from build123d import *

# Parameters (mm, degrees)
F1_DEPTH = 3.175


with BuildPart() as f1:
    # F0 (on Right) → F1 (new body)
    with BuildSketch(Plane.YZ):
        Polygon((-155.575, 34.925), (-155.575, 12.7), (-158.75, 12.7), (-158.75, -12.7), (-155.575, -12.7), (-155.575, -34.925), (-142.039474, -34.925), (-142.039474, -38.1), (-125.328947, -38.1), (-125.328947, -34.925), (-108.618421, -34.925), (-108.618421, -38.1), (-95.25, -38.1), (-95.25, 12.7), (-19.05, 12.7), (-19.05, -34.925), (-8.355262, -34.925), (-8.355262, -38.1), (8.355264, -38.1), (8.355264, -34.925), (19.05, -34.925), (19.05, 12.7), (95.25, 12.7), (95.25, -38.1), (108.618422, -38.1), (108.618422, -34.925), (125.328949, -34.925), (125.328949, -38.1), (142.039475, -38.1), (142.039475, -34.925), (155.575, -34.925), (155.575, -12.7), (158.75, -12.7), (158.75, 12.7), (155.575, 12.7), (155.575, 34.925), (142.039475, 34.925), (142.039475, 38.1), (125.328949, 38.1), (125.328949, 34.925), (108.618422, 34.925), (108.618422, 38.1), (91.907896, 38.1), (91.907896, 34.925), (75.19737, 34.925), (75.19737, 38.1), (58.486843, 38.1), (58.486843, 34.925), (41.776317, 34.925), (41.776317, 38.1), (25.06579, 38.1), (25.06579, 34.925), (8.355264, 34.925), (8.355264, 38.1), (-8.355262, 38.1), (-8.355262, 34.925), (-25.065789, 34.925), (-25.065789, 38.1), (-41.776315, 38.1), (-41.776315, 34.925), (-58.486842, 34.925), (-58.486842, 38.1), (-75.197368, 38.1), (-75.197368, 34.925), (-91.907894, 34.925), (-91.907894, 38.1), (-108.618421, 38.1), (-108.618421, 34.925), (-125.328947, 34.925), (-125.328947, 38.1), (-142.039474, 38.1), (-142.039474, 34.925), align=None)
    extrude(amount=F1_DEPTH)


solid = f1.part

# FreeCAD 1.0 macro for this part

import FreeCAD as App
import Part
import Sketcher
from FreeCAD import Vector
Q = App.Units.Quantity

doc = App.newDocument("Part")
body = doc.addObject("PartDesign::Body", "Body")

# Sketch on YZ plane
sketch1 = body.newObject("Sketcher::SketchObject", "Sketch")
sketch1.AttachmentSupport = (doc.getObject("YZ_Plane"), [""])
sketch1.MapMode = "FlatFace"
sketch1.addGeometry([
    Part.LineSegment(Vector(-155.6, 34.9, 0), Vector(-155.6, 12.7, 0)),  # 0
    Part.LineSegment(Vector(-155.6, 12.7, 0), Vector(-158.8, 12.7, 0)),  # 1
    Part.LineSegment(Vector(-158.8, 12.7, 0), Vector(-158.8, -12.7, 0)),  # 2
    Part.LineSegment(Vector(-158.8, -12.7, 0), Vector(-155.6, -12.7, 0)),  # 3
    Part.LineSegment(Vector(-155.6, -12.7, 0), Vector(-155.6, -34.9, 0)),  # 4
    Part.LineSegment(Vector(-155.6, -34.9, 0), Vector(-142, -34.9, 0)),  # 5
    Part.LineSegment(Vector(-142, -34.9, 0), Vector(-142, -38.1, 0)),  # 6
    Part.LineSegment(Vector(-142, -38.1, 0), Vector(-125.3, -38.1, 0)),  # 7
    Part.LineSegment(Vector(-125.3, -38.1, 0), Vector(-125.3, -34.9, 0)),  # 8
    Part.LineSegment(Vector(-125.3, -34.9, 0), Vector(-108.6, -34.9, 0)),  # 9
    Part.LineSegment(Vector(-108.6, -34.9, 0), Vector(-108.6, -38.1, 0)),  # 10
    Part.LineSegment(Vector(-108.6, -38.1, 0), Vector(-95.2, -38.1, 0)),  # 11
    Part.LineSegment(Vector(-95.2, -38.1, 0), Vector(-95.2, 12.7, 0)),  # 12
    Part.LineSegment(Vector(-95.2, 12.7, 0), Vector(-19.1, 12.7, 0)),  # 13
    Part.LineSegment(Vector(-19.1, 12.7, 0), Vector(-19.1, -34.9, 0)),  # 14
    Part.LineSegment(Vector(-19.1, -34.9, 0), Vector(-8.4, -34.9, 0)),  # 15
    Part.LineSegment(Vector(-8.4, -34.9, 0), Vector(-8.4, -38.1, 0)),  # 16
    Part.LineSegment(Vector(-8.4, -38.1, 0), Vector(8.4, -38.1, 0)),  # 17
    Part.LineSegment(Vector(8.4, -38.1, 0), Vector(8.4, -34.9, 0)),  # 18
    Part.LineSegment(Vector(8.4, -34.9, 0), Vector(19.1, -34.9, 0)),  # 19
    Part.LineSegment(Vector(19.1, -34.9, 0), Vector(19.1, 12.7, 0)),  # 20
    Part.LineSegment(Vector(19.1, 12.7, 0), Vector(95.2, 12.7, 0)),  # 21
    Part.LineSegment(Vector(95.2, 12.7, 0), Vector(95.2, -38.1, 0)),  # 22
    Part.LineSegment(Vector(95.2, -38.1, 0), Vector(108.6, -38.1, 0)),  # 23
    Part.LineSegment(Vector(108.6, -38.1, 0), Vector(108.6, -34.9, 0)),  # 24
    Part.LineSegment(Vector(108.6, -34.9, 0), Vector(125.3, -34.9, 0)),  # 25
    Part.LineSegment(Vector(125.3, -34.9, 0), Vector(125.3, -38.1, 0)),  # 26
    Part.LineSegment(Vector(125.3, -38.1, 0), Vector(142, -38.1, 0)),  # 27
    Part.LineSegment(Vector(142, -38.1, 0), Vector(142, -34.9, 0)),  # 28
    Part.LineSegment(Vector(142, -34.9, 0), Vector(155.6, -34.9, 0)),  # 29
    Part.LineSegment(Vector(155.6, -34.9, 0), Vector(155.6, -12.7, 0)),  # 30
    Part.LineSegment(Vector(155.6, -12.7, 0), Vector(158.8, -12.7, 0)),  # 31
    Part.LineSegment(Vector(158.8, -12.7, 0), Vector(158.8, 12.7, 0)),  # 32
    Part.LineSegment(Vector(158.8, 12.7, 0), Vector(155.6, 12.7, 0)),  # 33
    Part.LineSegment(Vector(155.6, 12.7, 0), Vector(155.6, 34.9, 0)),  # 34
    Part.LineSegment(Vector(155.6, 34.9, 0), Vector(142, 34.9, 0)),  # 35
    Part.LineSegment(Vector(142, 34.9, 0), Vector(142, 38.1, 0)),  # 36
    Part.LineSegment(Vector(142, 38.1, 0), Vector(125.3, 38.1, 0)),  # 37
    Part.LineSegment(Vector(125.3, 38.1, 0), Vector(125.3, 34.9, 0)),  # 38
    Part.LineSegment(Vector(125.3, 34.9, 0), Vector(108.6, 34.9, 0)),  # 39
    Part.LineSegment(Vector(108.6, 34.9, 0), Vector(108.6, 38.1, 0)),  # 40
    Part.LineSegment(Vector(108.6, 38.1, 0), Vector(91.9, 38.1, 0)),  # 41
    Part.LineSegment(Vector(91.9, 38.1, 0), Vector(91.9, 34.9, 0)),  # 42
    Part.LineSegment(Vector(91.9, 34.9, 0), Vector(75.2, 34.9, 0)),  # 43
    Part.LineSegment(Vector(75.2, 34.9, 0), Vector(75.2, 38.1, 0)),  # 44
    Part.LineSegment(Vector(75.2, 38.1, 0), Vector(58.5, 38.1, 0)),  # 45
    Part.LineSegment(Vector(58.5, 38.1, 0), Vector(58.5, 34.9, 0)),  # 46
    Part.LineSegment(Vector(58.5, 34.9, 0), Vector(41.8, 34.9, 0)),  # 47
    Part.LineSegment(Vector(41.8, 34.9, 0), Vector(41.8, 38.1, 0)),  # 48
    Part.LineSegment(Vector(41.8, 38.1, 0), Vector(25.1, 38.1, 0)),  # 49
    Part.LineSegment(Vector(25.1, 38.1, 0), Vector(25.1, 34.9, 0)),  # 50
    Part.LineSegment(Vector(25.1, 34.9, 0), Vector(8.4, 34.9, 0)),  # 51
    Part.LineSegment(Vector(8.4, 34.9, 0), Vector(8.4, 38.1, 0)),  # 52
    Part.LineSegment(Vector(8.4, 38.1, 0), Vector(-8.4, 38.1, 0)),  # 53
    Part.LineSegment(Vector(-8.4, 38.1, 0), Vector(-8.4, 34.9, 0)),  # 54
    Part.LineSegment(Vector(-8.4, 34.9, 0), Vector(-25.1, 34.9, 0)),  # 55
    Part.LineSegment(Vector(-25.1, 34.9, 0), Vector(-25.1, 38.1, 0)),  # 56
    Part.LineSegment(Vector(-25.1, 38.1, 0), Vector(-41.8, 38.1, 0)),  # 57
    Part.LineSegment(Vector(-41.8, 38.1, 0), Vector(-41.8, 34.9, 0)),  # 58
    Part.LineSegment(Vector(-41.8, 34.9, 0), Vector(-58.5, 34.9, 0)),  # 59
    Part.LineSegment(Vector(-58.5, 34.9, 0), Vector(-58.5, 38.1, 0)),  # 60
    Part.LineSegment(Vector(-58.5, 38.1, 0), Vector(-75.2, 38.1, 0)),  # 61
    Part.LineSegment(Vector(-75.2, 38.1, 0), Vector(-75.2, 34.9, 0)),  # 62
    Part.LineSegment(Vector(-75.2, 34.9, 0), Vector(-91.9, 34.9, 0)),  # 63
    Part.LineSegment(Vector(-91.9, 34.9, 0), Vector(-91.9, 38.1, 0)),  # 64
    Part.LineSegment(Vector(-91.9, 38.1, 0), Vector(-108.6, 38.1, 0)),  # 65
    Part.LineSegment(Vector(-108.6, 38.1, 0), Vector(-108.6, 34.9, 0)),  # 66
    Part.LineSegment(Vector(-108.6, 34.9, 0), Vector(-125.3, 34.9, 0)),  # 67
    Part.LineSegment(Vector(-125.3, 34.9, 0), Vector(-125.3, 38.1, 0)),  # 68
    Part.LineSegment(Vector(-125.3, 38.1, 0), Vector(-142, 38.1, 0)),  # 69
    Part.LineSegment(Vector(-142, 38.1, 0), Vector(-142, 34.9, 0)),  # 70
    Part.LineSegment(Vector(-142, 34.9, 0), Vector(-155.6, 34.9, 0)),  # 71
], False)
sketch1.addConstraint([
    Sketcher.Constraint("Coincident", 0, 2, 1, 1),
    Sketcher.Constraint("Coincident", 1, 2, 2, 1),
    Sketcher.Constraint("Coincident", 2, 2, 3, 1),
    Sketcher.Constraint("Coincident", 3, 2, 4, 1),
    Sketcher.Constraint("Coincident", 4, 2, 5, 1),
    Sketcher.Constraint("Coincident", 5, 2, 6, 1),
    Sketcher.Constraint("Coincident", 6, 2, 7, 1),
    Sketcher.Constraint("Coincident", 7, 2, 8, 1),
    Sketcher.Constraint("Coincident", 8, 2, 9, 1),
    Sketcher.Constraint("Coincident", 9, 2, 10, 1),
    Sketcher.Constraint("Coincident", 10, 2, 11, 1),
    Sketcher.Constraint("Coincident", 11, 2, 12, 1),
    Sketcher.Constraint("Coincident", 12, 2, 13, 1),
    Sketcher.Constraint("Coincident", 13, 2, 14, 1),
    Sketcher.Constraint("Coincident", 14, 2, 15, 1),
    Sketcher.Constraint("Coincident", 15, 2, 16, 1),
    Sketcher.Constraint("Coincident", 16, 2, 17, 1),
    Sketcher.Constraint("Coincident", 17, 2, 18, 1),
    Sketcher.Constraint("Coincident", 18, 2, 19, 1),
    Sketcher.Constraint("Coincident", 19, 2, 20, 1),
    Sketcher.Constraint("Coincident", 20, 2, 21, 1),
    Sketcher.Constraint("Coincident", 21, 2, 22, 1),
    Sketcher.Constraint("Coincident", 22, 2, 23, 1),
    Sketcher.Constraint("Coincident", 23, 2, 24, 1),
    Sketcher.Constraint("Coincident", 24, 2, 25, 1),
    Sketcher.Constraint("Coincident", 25, 2, 26, 1),
    Sketcher.Constraint("Coincident", 26, 2, 27, 1),
    Sketcher.Constraint("Coincident", 27, 2, 28, 1),
    Sketcher.Constraint("Coincident", 28, 2, 29, 1),
    Sketcher.Constraint("Coincident", 29, 2, 30, 1),
    Sketcher.Constraint("Coincident", 30, 2, 31, 1),
    Sketcher.Constraint("Coincident", 31, 2, 32, 1),
    Sketcher.Constraint("Coincident", 32, 2, 33, 1),
    Sketcher.Constraint("Coincident", 33, 2, 34, 1),
    Sketcher.Constraint("Coincident", 34, 2, 35, 1),
    Sketcher.Constraint("Coincident", 35, 2, 36, 1),
    Sketcher.Constraint("Coincident", 36, 2, 37, 1),
    Sketcher.Constraint("Coincident", 37, 2, 38, 1),
    Sketcher.Constraint("Coincident", 38, 2, 39, 1),
    Sketcher.Constraint("Coincident", 39, 2, 40, 1),
    Sketcher.Constraint("Coincident", 40, 2, 41, 1),
    Sketcher.Constraint("Coincident", 41, 2, 42, 1),
    Sketcher.Constraint("Coincident", 42, 2, 43, 1),
    Sketcher.Constraint("Coincident", 43, 2, 44, 1),
    Sketcher.Constraint("Coincident", 44, 2, 45, 1),
    Sketcher.Constraint("Coincident", 45, 2, 46, 1),
    Sketcher.Constraint("Coincident", 46, 2, 47, 1),
    Sketcher.Constraint("Coincident", 47, 2, 48, 1),
    Sketcher.Constraint("Coincident", 48, 2, 49, 1),
    Sketcher.Constraint("Coincident", 49, 2, 50, 1),
    Sketcher.Constraint("Coincident", 50, 2, 51, 1),
    Sketcher.Constraint("Coincident", 51, 2, 52, 1),
    Sketcher.Constraint("Coincident", 52, 2, 53, 1),
    Sketcher.Constraint("Coincident", 53, 2, 54, 1),
    Sketcher.Constraint("Coincident", 54, 2, 55, 1),
    Sketcher.Constraint("Coincident", 55, 2, 56, 1),
    Sketcher.Constraint("Coincident", 56, 2, 57, 1),
    Sketcher.Constraint("Coincident", 57, 2, 58, 1),
    Sketcher.Constraint("Coincident", 58, 2, 59, 1),
    Sketcher.Constraint("Coincident", 59, 2, 60, 1),
    Sketcher.Constraint("Coincident", 60, 2, 61, 1),
    Sketcher.Constraint("Coincident", 61, 2, 62, 1),
    Sketcher.Constraint("Coincident", 62, 2, 63, 1),
    Sketcher.Constraint("Coincident", 63, 2, 64, 1),
    Sketcher.Constraint("Coincident", 64, 2, 65, 1),
    Sketcher.Constraint("Coincident", 65, 2, 66, 1),
    Sketcher.Constraint("Coincident", 66, 2, 67, 1),
    Sketcher.Constraint("Coincident", 67, 2, 68, 1),
    Sketcher.Constraint("Coincident", 68, 2, 69, 1),
    Sketcher.Constraint("Coincident", 69, 2, 70, 1),
    Sketcher.Constraint("Coincident", 70, 2, 71, 1),
    Sketcher.Constraint("Coincident", 71, 2, 0, 1),
    Sketcher.Constraint("Vertical", 0),
    Sketcher.Constraint("Horizontal", 1),
    Sketcher.Constraint("Vertical", 2),
    Sketcher.Constraint("Horizontal", 3),
    Sketcher.Constraint("Vertical", 4),
    Sketcher.Constraint("Horizontal", 5),
    Sketcher.Constraint("Vertical", 6),
    Sketcher.Constraint("Horizontal", 7),
    Sketcher.Constraint("Vertical", 8),
    Sketcher.Constraint("Horizontal", 9),
    Sketcher.Constraint("Vertical", 10),
    Sketcher.Constraint("Horizontal", 11),
    Sketcher.Constraint("Vertical", 12),
    Sketcher.Constraint("Horizontal", 13),
    Sketcher.Constraint("Vertical", 14),
    Sketcher.Constraint("Horizontal", 15),
    Sketcher.Constraint("Vertical", 16),
    Sketcher.Constraint("Horizontal", 17),
    Sketcher.Constraint("Vertical", 18),
    Sketcher.Constraint("Horizontal", 19),
    Sketcher.Constraint("Vertical", 20),
    Sketcher.Constraint("Horizontal", 21),
    Sketcher.Constraint("Vertical", 22),
    Sketcher.Constraint("Horizontal", 23),
    Sketcher.Constraint("Vertical", 24),
    Sketcher.Constraint("Horizontal", 25),
    Sketcher.Constraint("Vertical", 26),
    Sketcher.Constraint("Horizontal", 27),
    Sketcher.Constraint("Vertical", 28),
    Sketcher.Constraint("Horizontal", 29),
    Sketcher.Constraint("Vertical", 30),
    Sketcher.Constraint("Horizontal", 31),
    Sketcher.Constraint("Vertical", 32),
    Sketcher.Constraint("Horizontal", 33),
    Sketcher.Constraint("Vertical", 34),
    Sketcher.Constraint("Horizontal", 35),
    Sketcher.Constraint("Vertical", 36),
    Sketcher.Constraint("Horizontal", 37),
    Sketcher.Constraint("Vertical", 38),
    Sketcher.Constraint("Horizontal", 39),
    Sketcher.Constraint("Vertical", 40),
    Sketcher.Constraint("Horizontal", 41),
    Sketcher.Constraint("Vertical", 42),
    Sketcher.Constraint("Horizontal", 43),
    Sketcher.Constraint("Vertical", 44),
    Sketcher.Constraint("Horizontal", 45),
    Sketcher.Constraint("Vertical", 46),
    Sketcher.Constraint("Horizontal", 47),
    Sketcher.Constraint("Vertical", 48),
    Sketcher.Constraint("Horizontal", 49),
    Sketcher.Constraint("Vertical", 50),
    Sketcher.Constraint("Horizontal", 51),
    Sketcher.Constraint("Vertical", 52),
    Sketcher.Constraint("Horizontal", 53),
    Sketcher.Constraint("Vertical", 54),
    Sketcher.Constraint("Horizontal", 55),
    Sketcher.Constraint("Vertical", 56),
    Sketcher.Constraint("Horizontal", 57),
    Sketcher.Constraint("Vertical", 58),
    Sketcher.Constraint("Horizontal", 59),
    Sketcher.Constraint("Vertical", 60),
    Sketcher.Constraint("Horizontal", 61),
    Sketcher.Constraint("Vertical", 62),
    Sketcher.Constraint("Horizontal", 63),
    Sketcher.Constraint("Vertical", 64),
    Sketcher.Constraint("Horizontal", 65),
    Sketcher.Constraint("Vertical", 66),
    Sketcher.Constraint("Horizontal", 67),
    Sketcher.Constraint("Vertical", 68),
    Sketcher.Constraint("Horizontal", 69),
    Sketcher.Constraint("Vertical", 70),
    Sketcher.Constraint("Horizontal", 71),
    Sketcher.Constraint("Symmetric", 0, 2, 30, 2, -1, 1),
    Sketcher.Constraint("Symmetric", 2, 2, 32, 2, -1, 1),
    Sketcher.Constraint("Symmetric", 4, 2, 34, 2, -1, 1),
    Sketcher.Constraint("Symmetric", 6, 2, 36, 2, -1, 1),
    Sketcher.Constraint("Symmetric", 8, 2, 38, 2, -1, 1),
    Sketcher.Constraint("Symmetric", 10, 2, 40, 2, -1, 1),
    Sketcher.Constraint("Symmetric", 15, 2, 51, 2, -1, 1),
    Sketcher.Constraint("Symmetric", 17, 2, 53, 2, -1, 1),
    Sketcher.Constraint("Symmetric", 23, 2, 65, 2, -1, 1),
    Sketcher.Constraint("Symmetric", 25, 2, 67, 2, -1, 1),
    Sketcher.Constraint("Symmetric", 27, 2, 69, 2, -1, 1),
    Sketcher.Constraint("Symmetric", 15, 2, 18, 2, -2),
    Sketcher.Constraint("Symmetric", 13, 2, 20, 2, -2),
    Sketcher.Constraint("Symmetric", 11, 2, 22, 2, -2),
    Sketcher.Constraint("Symmetric", 9, 2, 24, 2, -2),
    Sketcher.Constraint("Symmetric", 7, 2, 26, 2, -2),
    Sketcher.Constraint("Symmetric", 5, 2, 28, 2, -2),
    Sketcher.Constraint("Symmetric", 3, 2, 30, 2, -2),
    Sketcher.Constraint("Symmetric", 50, 2, 55, 2, -2),
    Sketcher.Constraint("Symmetric", 48, 2, 57, 2, -2),
    Sketcher.Constraint("Symmetric", 46, 2, 59, 2, -2),
    Sketcher.Constraint("Symmetric", 44, 2, 61, 2, -2),
    Sketcher.Constraint("Symmetric", 42, 2, 63, 2, -2),
    Sketcher.Constraint("Horizontal", 5, 2, 8, 2),
    Sketcher.Constraint("Horizontal", 7, 2, 10, 2),
    Sketcher.Constraint("Horizontal", 1, 2, 12, 2),
    Sketcher.Constraint("Horizontal", 9, 2, 14, 2),
    Sketcher.Constraint("Horizontal", 11, 2, 16, 2),
    Sketcher.Constraint("Horizontal", 39, 2, 42, 2),
    Sketcher.Constraint("Horizontal", 41, 2, 44, 2),
    Sketcher.Constraint("Horizontal", 43, 2, 46, 2),
    Sketcher.Constraint("Horizontal", 45, 2, 48, 2),
    Sketcher.Constraint("Horizontal", 67, 2, 70, 2),
    Sketcher.Constraint("Equal", 7, 9),
    Sketcher.Constraint("Equal", 9, 17),
    Sketcher.Constraint("Equal", 39, 41),
    Sketcher.Constraint("Equal", 41, 43),
    Sketcher.Constraint("Equal", 43, 45),
    Sketcher.Constraint("Equal", 45, 47),
    Sketcher.Constraint("Equal", 47, 49),
    Sketcher.Constraint("Equal", 49, 51),
    Sketcher.Constraint("Equal", 33, 6),
    Sketcher.Constraint("DistanceX", 13, 1, 13, 2, Q("3 in")),
    Sketcher.Constraint("DistanceY", 2, 2, 2, 1, Q("1 in")),
    Sketcher.Constraint("DistanceY", 12, 1, 12, 2, Q("2 in")),
    Sketcher.Constraint("DistanceX", 1, 2, 1, 1, Q("0.125 in")),
    Sketcher.Constraint("DistanceX", 1, 2, -1, 1, Q("6.25 in")),
    Sketcher.Constraint("DistanceX", 11, 2, -1, 1, Q("3.75 in")),
    Sketcher.Constraint("DistanceX", 11, 1, 11, 2, Q("13.368421 mm")),
])
pad1 = body.newObject("PartDesign::Pad", "Pad")
pad1.Profile = sketch1
pad1.Length = Q("0.125 in")

doc.recompute()
